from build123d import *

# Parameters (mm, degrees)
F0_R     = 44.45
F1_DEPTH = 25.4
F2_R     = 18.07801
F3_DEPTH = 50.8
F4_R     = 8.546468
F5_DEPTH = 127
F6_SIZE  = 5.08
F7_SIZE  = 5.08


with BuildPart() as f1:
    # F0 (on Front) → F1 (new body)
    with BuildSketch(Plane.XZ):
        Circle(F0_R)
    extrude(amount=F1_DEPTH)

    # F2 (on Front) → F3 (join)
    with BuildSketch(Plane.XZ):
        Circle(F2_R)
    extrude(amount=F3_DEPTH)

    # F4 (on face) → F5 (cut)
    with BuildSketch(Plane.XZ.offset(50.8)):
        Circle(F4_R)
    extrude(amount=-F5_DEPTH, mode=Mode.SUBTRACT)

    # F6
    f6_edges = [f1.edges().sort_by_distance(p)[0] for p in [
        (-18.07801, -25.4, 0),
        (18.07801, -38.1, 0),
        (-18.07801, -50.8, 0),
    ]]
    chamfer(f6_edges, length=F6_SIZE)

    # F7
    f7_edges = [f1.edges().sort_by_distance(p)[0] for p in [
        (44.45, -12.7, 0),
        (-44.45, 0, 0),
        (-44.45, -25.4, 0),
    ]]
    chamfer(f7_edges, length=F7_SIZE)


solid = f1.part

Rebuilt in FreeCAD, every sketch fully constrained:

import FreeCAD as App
import Part
import Sketcher

V = App.Vector
Q = App.Units.Quantity


def edges_at(feature, points):
    """Names of the edges that pass closest to the given points."""
    edges = feature.Shape.Edges
    near = lambda p: min(range(len(edges)), key=lambda i: edges[i].distToShape(Part.Vertex(*p))[0])
    return sorted({f"Edge{near(p) + 1}" for p in points})

doc = App.newDocument("Part")
body = doc.addObject("PartDesign::Body", "Body")

sketch1 = body.newObject("Sketcher::SketchObject", "Sketch")
sketch1.AttachmentSupport = (doc.getObject("XZ_Plane"), [""])
sketch1.MapMode = "FlatFace"
sketch1.addGeometry(Part.Circle(V(0, 0, 0), V(0, 0, 1), 44.45), False)
sketch1.addConstraint([
    Sketcher.Constraint("Coincident", 0, 3, -1, 1),
    Sketcher.Constraint("Diameter", 0, Q("3.5 in")),
])
pad1 = body.newObject("PartDesign::Pad", "Pad")
pad1.Profile = sketch1
pad1.Length = Q("1 in")

sketch2 = body.newObject("Sketcher::SketchObject", "Sketch001")
sketch2.AttachmentSupport = (doc.getObject("XZ_Plane"), [""])
sketch2.MapMode = "FlatFace"
sketch2.addGeometry(Part.Circle(V(0, 0, 0), V(0, 0, 1), 18.07801), False)
sketch2.addConstraint([
    Sketcher.Constraint("Coincident", 0, 3, -1, 1),
    Sketcher.Constraint("Diameter", 0, Q("36.15602 mm")),
])
pad2 = body.newObject("PartDesign::Pad", "Pad001")
pad2.Profile = sketch2
pad2.Length = Q("2 in")

sketch3 = body.newObject("Sketcher::SketchObject", "Sketch002")
sketch3.AttachmentSupport = (doc.getObject("XZ_Plane"), [""])
sketch3.MapMode = "FlatFace"
sketch3.AttachmentOffset = App.Placement(V(0, 0, 2 * 25.4), App.Rotation())
sketch3.addGeometry(Part.Circle(V(0, 0, 0), V(0, 0, 1), 8.546468), False)
sketch3.addConstraint([
    Sketcher.Constraint("Coincident", 0, 3, -1, 1),
    Sketcher.Constraint("Diameter", 0, Q("17.092936 mm")),
])
pocket1 = body.newObject("PartDesign::Pocket", "Pocket")
pocket1.Profile = sketch3
pocket1.Length = Q("5 in")
doc.recompute()

chamfer = body.newObject("PartDesign::Chamfer", "Chamfer")
chamfer.Base = (pocket1, edges_at(pocket1, [(-18.078, -25.4, 0), (18.078, -38.1, 0), (-18.078, -50.8, 0)]))
chamfer.Size = Q("0.2 in")
doc.recompute()

chamfer2 = body.newObject("PartDesign::Chamfer", "Chamfer001")
chamfer2.Base = (chamfer, edges_at(chamfer, [(44.45, -12.7, 0), (-44.45, 0, 0), (-44.45, -25.4, 0)]))
chamfer2.Size = Q("0.2 in")

doc.recompute()
